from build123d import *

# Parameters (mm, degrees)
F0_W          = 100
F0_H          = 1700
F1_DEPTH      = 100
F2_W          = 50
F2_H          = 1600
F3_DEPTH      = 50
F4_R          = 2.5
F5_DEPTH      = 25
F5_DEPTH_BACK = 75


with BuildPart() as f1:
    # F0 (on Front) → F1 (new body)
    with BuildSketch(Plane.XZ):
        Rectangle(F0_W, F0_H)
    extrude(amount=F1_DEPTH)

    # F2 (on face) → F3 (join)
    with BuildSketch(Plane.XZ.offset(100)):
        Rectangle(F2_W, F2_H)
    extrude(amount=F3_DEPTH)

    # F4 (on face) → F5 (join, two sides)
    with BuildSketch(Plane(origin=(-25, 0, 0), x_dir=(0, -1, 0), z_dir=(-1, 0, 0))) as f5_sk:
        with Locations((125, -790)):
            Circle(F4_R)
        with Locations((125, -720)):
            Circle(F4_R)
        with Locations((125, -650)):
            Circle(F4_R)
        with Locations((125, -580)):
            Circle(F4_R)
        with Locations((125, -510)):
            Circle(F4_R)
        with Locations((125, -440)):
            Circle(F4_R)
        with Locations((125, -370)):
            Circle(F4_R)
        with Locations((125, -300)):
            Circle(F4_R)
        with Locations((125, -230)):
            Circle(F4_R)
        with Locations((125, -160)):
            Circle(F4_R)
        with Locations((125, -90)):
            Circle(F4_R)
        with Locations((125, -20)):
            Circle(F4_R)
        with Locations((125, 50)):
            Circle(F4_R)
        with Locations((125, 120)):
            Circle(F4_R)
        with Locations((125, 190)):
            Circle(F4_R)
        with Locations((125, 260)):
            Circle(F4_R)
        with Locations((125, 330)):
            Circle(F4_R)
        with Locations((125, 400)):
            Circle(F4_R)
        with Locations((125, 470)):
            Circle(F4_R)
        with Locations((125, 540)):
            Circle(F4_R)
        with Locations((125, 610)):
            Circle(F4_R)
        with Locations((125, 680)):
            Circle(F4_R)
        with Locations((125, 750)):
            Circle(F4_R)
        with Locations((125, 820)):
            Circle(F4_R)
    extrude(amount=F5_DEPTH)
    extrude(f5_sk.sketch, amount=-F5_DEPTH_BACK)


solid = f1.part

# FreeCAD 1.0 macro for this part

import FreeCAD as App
import Part
import Sketcher
Q = App.Units.Quantity


def add_polygon(sketch, points):
    """Adds a closed chain of lines whose ends are joined by coincident constraints."""
    first, n = sketch.GeometryCount, len(points)
    for a, b in zip(points, points[1:] + points[:1]):
        sketch.addGeometry(Part.LineSegment(App.Vector(*a, 0), App.Vector(*b, 0)), False)
    for i in range(n):
        sketch.addConstraint(Sketcher.Constraint("Coincident", first + i, 2, first + (i + 1) % n, 1))

doc = App.newDocument("Part")
body = doc.addObject("PartDesign::Body", "Body")
body.AllowCompound = True

# Sketch on XZ plane
sketch1 = body.newObject("Sketcher::SketchObject", "Sketch")
sketch1.AttachmentSupport = (doc.getObject("XZ_Plane"), [""])
sketch1.MapMode = "FlatFace"
add_polygon(sketch1, [(-50, 850), (-50, -850), (50, -850), (50, 850)])  # lines 0-3
sketch1.addConstraint([
    Sketcher.Constraint("Vertical", 0),
    Sketcher.Constraint("Horizontal", 1),
    Sketcher.Constraint("Vertical", 2),
    Sketcher.Constraint("Horizontal", 3),
    Sketcher.Constraint("Symmetric", 0, 2, 2, 2, -1, 1),
    Sketcher.Constraint("DistanceX", 1, 1, 1, 2, Q("100 mm")),
    Sketcher.Constraint("DistanceY", 0, 2, 0, 1, Q("1700 mm")),
])
pad1 = body.newObject("PartDesign::Pad", "Pad")
pad1.Profile = sketch1
pad1.Length = 100

# Sketch on XZ plane
sketch2 = body.newObject("Sketcher::SketchObject", "Sketch001")
sketch2.AttachmentSupport = (doc.getObject("XZ_Plane"), [""])
sketch2.MapMode = "FlatFace"
sketch2.AttachmentOffset = App.Placement(App.Vector(0, 0, 100), App.Rotation())
add_polygon(sketch2, [(-25, 800), (-25, -800), (25, -800), (25, 800)])  # lines 0-3
sketch2.addConstraint([
    Sketcher.Constraint("Vertical", 0),
    Sketcher.Constraint("Horizontal", 1),
    Sketcher.Constraint("Vertical", 2),
    Sketcher.Constraint("Horizontal", 3),
    Sketcher.Constraint("Symmetric", 0, 2, 2, 2, -1, 1),
    Sketcher.Constraint("DistanceX", 1, 1, 1, 2, Q("50 mm")),
    Sketcher.Constraint("DistanceY", 0, 2, 0, 1, Q("1600 mm")),
])
pad2 = body.newObject("PartDesign::Pad", "Pad001")
pad2.Profile = sketch2
pad2.Length = 50

# Sketch on YZ plane
sketch3 = body.newObject("Sketcher::SketchObject", "Sketch002")
sketch3.AttachmentSupport = (doc.getObject("YZ_Plane"), [""])
sketch3.MapMode = "FlatFace"
sketch3.AttachmentOffset = App.Placement(App.Vector(0, 0, -25), App.Rotation())
sketch3.addGeometry([
    Part.Circle(App.Vector(-125, -790, 0), App.Vector(0, 0, 1), 2.5),  # 0
    Part.Circle(App.Vector(-125, -720, 0), App.Vector(0, 0, 1), 2.5),  # 1
    Part.Circle(App.Vector(-125, -650, 0), App.Vector(0, 0, 1), 2.5),  # 2
    Part.Circle(App.Vector(-125, -580, 0), App.Vector(0, 0, 1), 2.5),  # 3
    Part.Circle(App.Vector(-125, -510, 0), App.Vector(0, 0, 1), 2.5),  # 4
    Part.Circle(App.Vector(-125, -440, 0), App.Vector(0, 0, 1), 2.5),  # 5
    Part.Circle(App.Vector(-125, -370, 0), App.Vector(0, 0, 1), 2.5),  # 6
    Part.Circle(App.Vector(-125, -300, 0), App.Vector(0, 0, 1), 2.5),  # 7
    Part.Circle(App.Vector(-125, -230, 0), App.Vector(0, 0, 1), 2.5),  # 8
    Part.Circle(App.Vector(-125, -160, 0), App.Vector(0, 0, 1), 2.5),  # 9
    Part.Circle(App.Vector(-125, -90, 0), App.Vector(0, 0, 1), 2.5),  # 10
    Part.Circle(App.Vector(-125, -20, 0), App.Vector(0, 0, 1), 2.5),  # 11
    Part.Circle(App.Vector(-125, 50, 0), App.Vector(0, 0, 1), 2.5),  # 12
    Part.Circle(App.Vector(-125, 120, 0), App.Vector(0, 0, 1), 2.5),  # 13
    Part.Circle(App.Vector(-125, 190, 0), App.Vector(0, 0, 1), 2.5),  # 14
    Part.Circle(App.Vector(-125, 260, 0), App.Vector(0, 0, 1), 2.5),  # 15
    Part.Circle(App.Vector(-125, 330, 0), App.Vector(0, 0, 1), 2.5),  # 16
    Part.Circle(App.Vector(-125, 400, 0), App.Vector(0, 0, 1), 2.5),  # 17
    Part.Circle(App.Vector(-125, 470, 0), App.Vector(0, 0, 1), 2.5),  # 18
    Part.Circle(App.Vector(-125, 540, 0), App.Vector(0, 0, 1), 2.5),  # 19
    Part.Circle(App.Vector(-125, 610, 0), App.Vector(0, 0, 1), 2.5),  # 20
    Part.Circle(App.Vector(-125, 680, 0), App.Vector(0, 0, 1), 2.5),  # 21
    Part.Circle(App.Vector(-125, 750, 0), App.Vector(0, 0, 1), 2.5),  # 22
    Part.Circle(App.Vector(-125, 820, 0), App.Vector(0, 0, 1), 2.5),  # 23
], False)
sketch3.addConstraint([
    Sketcher.Constraint("Equal", 0, 1),
    Sketcher.Constraint("Equal", 1, 2),
    Sketcher.Constraint("Equal", 2, 3),
    Sketcher.Constraint("Equal", 3, 4),
    Sketcher.Constraint("Equal", 4, 5),
    Sketcher.Constraint("Equal", 5, 6),
    Sketcher.Constraint("Equal", 6, 7),
    Sketcher.Constraint("Equal", 7, 8),
    Sketcher.Constraint("Equal", 8, 9),
    Sketcher.Constraint("Equal", 9, 10),
    Sketcher.Constraint("Equal", 10, 11),
    Sketcher.Constraint("Equal", 11, 12),
    Sketcher.Constraint("Equal", 12, 13),
    Sketcher.Constraint("Equal", 13, 14),
    Sketcher.Constraint("Equal", 14, 15),
    Sketcher.Constraint("Equal", 15, 16),
    Sketcher.Constraint("Equal", 16, 17),
    Sketcher.Constraint("Equal", 17, 18),
    Sketcher.Constraint("Equal", 18, 19),
    Sketcher.Constraint("Equal", 19, 20),
    Sketcher.Constraint("Equal", 20, 21),
    Sketcher.Constraint("Equal", 21, 22),
    Sketcher.Constraint("Equal", 22, 23),
    Sketcher.Constraint("Vertical", 0, 3, 1, 3),
    Sketcher.Constraint("Vertical", 1, 3, 2, 3),
    Sketcher.Constraint("Vertical", 2, 3, 3, 3),
    Sketcher.Constraint("Vertical", 3, 3, 4, 3),
    Sketcher.Constraint("Vertical", 4, 3, 5, 3),
    Sketcher.Constraint("Vertical", 5, 3, 6, 3),
    Sketcher.Constraint("Vertical", 6, 3, 7, 3),
    Sketcher.Constraint("Vertical", 7, 3, 8, 3),
    Sketcher.Constraint("Vertical", 8, 3, 9, 3),
    Sketcher.Constraint("Vertical", 9, 3, 10, 3),
    Sketcher.Constraint("Vertical", 10, 3, 11, 3),
    Sketcher.Constraint("Vertical", 11, 3, 12, 3),
    Sketcher.Constraint("Vertical", 12, 3, 13, 3),
    Sketcher.Constraint("Vertical", 13, 3, 14, 3),
    Sketcher.Constraint("Vertical", 14, 3, 15, 3),
    Sketcher.Constraint("Vertical", 15, 3, 16, 3),
    Sketcher.Constraint("Vertical", 16, 3, 17, 3),
    Sketcher.Constraint("Vertical", 17, 3, 18, 3),
    Sketcher.Constraint("Vertical", 18, 3, 19, 3),
    Sketcher.Constraint("Vertical", 19, 3, 20, 3),
    Sketcher.Constraint("Vertical", 20, 3, 21, 3),
    Sketcher.Constraint("Vertical", 21, 3, 22, 3),
    Sketcher.Constraint("Vertical", 22, 3, 23, 3),
    Sketcher.Constraint("Diameter", 0, Q("5 mm")),
    Sketcher.Constraint("DistanceX", 0, 3, -1, 1, Q("125 mm")),
    Sketcher.Constraint("DistanceY", 0, 3, -1, 1, Q("790 mm")),
    Sketcher.Constraint("DistanceY", 1, 3, -1, 1, Q("720 mm")),
    Sketcher.Constraint("DistanceY", 2, 3, -1, 1, Q("650 mm")),
    Sketcher.Constraint("DistanceY", 3, 3, -1, 1, Q("580 mm")),
    Sketcher.Constraint("DistanceY", 4, 3, -1, 1, Q("510 mm")),
    Sketcher.Constraint("DistanceY", 5, 3, -1, 1, Q("440 mm")),
    Sketcher.Constraint("DistanceY", 6, 3, -1, 1, Q("370 mm")),
    Sketcher.Constraint("DistanceY", 7, 3, -1, 1, Q("300 mm")),
    Sketcher.Constraint("DistanceY", 8, 3, -1, 1, Q("230 mm")),
    Sketcher.Constraint("DistanceY", 9, 3, -1, 1, Q("160 mm")),
    Sketcher.Constraint("DistanceY", 10, 3, -1, 1, Q("90 mm")),
    Sketcher.Constraint("DistanceY", 11, 3, -1, 1, Q("20 mm")),
    Sketcher.Constraint("DistanceY", -1, 1, 12, 3, Q("50 mm")),
    Sketcher.Constraint("DistanceY", -1, 1, 13, 3, Q("120 mm")),
    Sketcher.Constraint("DistanceY", -1, 1, 14, 3, Q("190 mm")),
    Sketcher.Constraint("DistanceY", -1, 1, 15, 3, Q("260 mm")),
    Sketcher.Constraint("DistanceY", -1, 1, 16, 3, Q("330 mm")),
    Sketcher.Constraint("DistanceY", -1, 1, 17, 3, Q("400 mm")),
    Sketcher.Constraint("DistanceY", -1, 1, 18, 3, Q("470 mm")),
    Sketcher.Constraint("DistanceY", -1, 1, 19, 3, Q("540 mm")),
    Sketcher.Constraint("DistanceY", -1, 1, 20, 3, Q("610 mm")),
    Sketcher.Constraint("DistanceY", -1, 1, 21, 3, Q("680 mm")),
    Sketcher.Constraint("DistanceY", -1, 1, 22, 3, Q("750 mm")),
    Sketcher.Constraint("DistanceY", -1, 1, 23, 3, Q("820 mm")),
])
pad3 = body.newObject("PartDesign::Pad", "Pad002")
pad3.Profile = sketch3
pad3.Type = "TwoLengths"
pad3.Length = 25
pad3.Length2 = 75
pad3.Reversed = True

doc.recompute()
